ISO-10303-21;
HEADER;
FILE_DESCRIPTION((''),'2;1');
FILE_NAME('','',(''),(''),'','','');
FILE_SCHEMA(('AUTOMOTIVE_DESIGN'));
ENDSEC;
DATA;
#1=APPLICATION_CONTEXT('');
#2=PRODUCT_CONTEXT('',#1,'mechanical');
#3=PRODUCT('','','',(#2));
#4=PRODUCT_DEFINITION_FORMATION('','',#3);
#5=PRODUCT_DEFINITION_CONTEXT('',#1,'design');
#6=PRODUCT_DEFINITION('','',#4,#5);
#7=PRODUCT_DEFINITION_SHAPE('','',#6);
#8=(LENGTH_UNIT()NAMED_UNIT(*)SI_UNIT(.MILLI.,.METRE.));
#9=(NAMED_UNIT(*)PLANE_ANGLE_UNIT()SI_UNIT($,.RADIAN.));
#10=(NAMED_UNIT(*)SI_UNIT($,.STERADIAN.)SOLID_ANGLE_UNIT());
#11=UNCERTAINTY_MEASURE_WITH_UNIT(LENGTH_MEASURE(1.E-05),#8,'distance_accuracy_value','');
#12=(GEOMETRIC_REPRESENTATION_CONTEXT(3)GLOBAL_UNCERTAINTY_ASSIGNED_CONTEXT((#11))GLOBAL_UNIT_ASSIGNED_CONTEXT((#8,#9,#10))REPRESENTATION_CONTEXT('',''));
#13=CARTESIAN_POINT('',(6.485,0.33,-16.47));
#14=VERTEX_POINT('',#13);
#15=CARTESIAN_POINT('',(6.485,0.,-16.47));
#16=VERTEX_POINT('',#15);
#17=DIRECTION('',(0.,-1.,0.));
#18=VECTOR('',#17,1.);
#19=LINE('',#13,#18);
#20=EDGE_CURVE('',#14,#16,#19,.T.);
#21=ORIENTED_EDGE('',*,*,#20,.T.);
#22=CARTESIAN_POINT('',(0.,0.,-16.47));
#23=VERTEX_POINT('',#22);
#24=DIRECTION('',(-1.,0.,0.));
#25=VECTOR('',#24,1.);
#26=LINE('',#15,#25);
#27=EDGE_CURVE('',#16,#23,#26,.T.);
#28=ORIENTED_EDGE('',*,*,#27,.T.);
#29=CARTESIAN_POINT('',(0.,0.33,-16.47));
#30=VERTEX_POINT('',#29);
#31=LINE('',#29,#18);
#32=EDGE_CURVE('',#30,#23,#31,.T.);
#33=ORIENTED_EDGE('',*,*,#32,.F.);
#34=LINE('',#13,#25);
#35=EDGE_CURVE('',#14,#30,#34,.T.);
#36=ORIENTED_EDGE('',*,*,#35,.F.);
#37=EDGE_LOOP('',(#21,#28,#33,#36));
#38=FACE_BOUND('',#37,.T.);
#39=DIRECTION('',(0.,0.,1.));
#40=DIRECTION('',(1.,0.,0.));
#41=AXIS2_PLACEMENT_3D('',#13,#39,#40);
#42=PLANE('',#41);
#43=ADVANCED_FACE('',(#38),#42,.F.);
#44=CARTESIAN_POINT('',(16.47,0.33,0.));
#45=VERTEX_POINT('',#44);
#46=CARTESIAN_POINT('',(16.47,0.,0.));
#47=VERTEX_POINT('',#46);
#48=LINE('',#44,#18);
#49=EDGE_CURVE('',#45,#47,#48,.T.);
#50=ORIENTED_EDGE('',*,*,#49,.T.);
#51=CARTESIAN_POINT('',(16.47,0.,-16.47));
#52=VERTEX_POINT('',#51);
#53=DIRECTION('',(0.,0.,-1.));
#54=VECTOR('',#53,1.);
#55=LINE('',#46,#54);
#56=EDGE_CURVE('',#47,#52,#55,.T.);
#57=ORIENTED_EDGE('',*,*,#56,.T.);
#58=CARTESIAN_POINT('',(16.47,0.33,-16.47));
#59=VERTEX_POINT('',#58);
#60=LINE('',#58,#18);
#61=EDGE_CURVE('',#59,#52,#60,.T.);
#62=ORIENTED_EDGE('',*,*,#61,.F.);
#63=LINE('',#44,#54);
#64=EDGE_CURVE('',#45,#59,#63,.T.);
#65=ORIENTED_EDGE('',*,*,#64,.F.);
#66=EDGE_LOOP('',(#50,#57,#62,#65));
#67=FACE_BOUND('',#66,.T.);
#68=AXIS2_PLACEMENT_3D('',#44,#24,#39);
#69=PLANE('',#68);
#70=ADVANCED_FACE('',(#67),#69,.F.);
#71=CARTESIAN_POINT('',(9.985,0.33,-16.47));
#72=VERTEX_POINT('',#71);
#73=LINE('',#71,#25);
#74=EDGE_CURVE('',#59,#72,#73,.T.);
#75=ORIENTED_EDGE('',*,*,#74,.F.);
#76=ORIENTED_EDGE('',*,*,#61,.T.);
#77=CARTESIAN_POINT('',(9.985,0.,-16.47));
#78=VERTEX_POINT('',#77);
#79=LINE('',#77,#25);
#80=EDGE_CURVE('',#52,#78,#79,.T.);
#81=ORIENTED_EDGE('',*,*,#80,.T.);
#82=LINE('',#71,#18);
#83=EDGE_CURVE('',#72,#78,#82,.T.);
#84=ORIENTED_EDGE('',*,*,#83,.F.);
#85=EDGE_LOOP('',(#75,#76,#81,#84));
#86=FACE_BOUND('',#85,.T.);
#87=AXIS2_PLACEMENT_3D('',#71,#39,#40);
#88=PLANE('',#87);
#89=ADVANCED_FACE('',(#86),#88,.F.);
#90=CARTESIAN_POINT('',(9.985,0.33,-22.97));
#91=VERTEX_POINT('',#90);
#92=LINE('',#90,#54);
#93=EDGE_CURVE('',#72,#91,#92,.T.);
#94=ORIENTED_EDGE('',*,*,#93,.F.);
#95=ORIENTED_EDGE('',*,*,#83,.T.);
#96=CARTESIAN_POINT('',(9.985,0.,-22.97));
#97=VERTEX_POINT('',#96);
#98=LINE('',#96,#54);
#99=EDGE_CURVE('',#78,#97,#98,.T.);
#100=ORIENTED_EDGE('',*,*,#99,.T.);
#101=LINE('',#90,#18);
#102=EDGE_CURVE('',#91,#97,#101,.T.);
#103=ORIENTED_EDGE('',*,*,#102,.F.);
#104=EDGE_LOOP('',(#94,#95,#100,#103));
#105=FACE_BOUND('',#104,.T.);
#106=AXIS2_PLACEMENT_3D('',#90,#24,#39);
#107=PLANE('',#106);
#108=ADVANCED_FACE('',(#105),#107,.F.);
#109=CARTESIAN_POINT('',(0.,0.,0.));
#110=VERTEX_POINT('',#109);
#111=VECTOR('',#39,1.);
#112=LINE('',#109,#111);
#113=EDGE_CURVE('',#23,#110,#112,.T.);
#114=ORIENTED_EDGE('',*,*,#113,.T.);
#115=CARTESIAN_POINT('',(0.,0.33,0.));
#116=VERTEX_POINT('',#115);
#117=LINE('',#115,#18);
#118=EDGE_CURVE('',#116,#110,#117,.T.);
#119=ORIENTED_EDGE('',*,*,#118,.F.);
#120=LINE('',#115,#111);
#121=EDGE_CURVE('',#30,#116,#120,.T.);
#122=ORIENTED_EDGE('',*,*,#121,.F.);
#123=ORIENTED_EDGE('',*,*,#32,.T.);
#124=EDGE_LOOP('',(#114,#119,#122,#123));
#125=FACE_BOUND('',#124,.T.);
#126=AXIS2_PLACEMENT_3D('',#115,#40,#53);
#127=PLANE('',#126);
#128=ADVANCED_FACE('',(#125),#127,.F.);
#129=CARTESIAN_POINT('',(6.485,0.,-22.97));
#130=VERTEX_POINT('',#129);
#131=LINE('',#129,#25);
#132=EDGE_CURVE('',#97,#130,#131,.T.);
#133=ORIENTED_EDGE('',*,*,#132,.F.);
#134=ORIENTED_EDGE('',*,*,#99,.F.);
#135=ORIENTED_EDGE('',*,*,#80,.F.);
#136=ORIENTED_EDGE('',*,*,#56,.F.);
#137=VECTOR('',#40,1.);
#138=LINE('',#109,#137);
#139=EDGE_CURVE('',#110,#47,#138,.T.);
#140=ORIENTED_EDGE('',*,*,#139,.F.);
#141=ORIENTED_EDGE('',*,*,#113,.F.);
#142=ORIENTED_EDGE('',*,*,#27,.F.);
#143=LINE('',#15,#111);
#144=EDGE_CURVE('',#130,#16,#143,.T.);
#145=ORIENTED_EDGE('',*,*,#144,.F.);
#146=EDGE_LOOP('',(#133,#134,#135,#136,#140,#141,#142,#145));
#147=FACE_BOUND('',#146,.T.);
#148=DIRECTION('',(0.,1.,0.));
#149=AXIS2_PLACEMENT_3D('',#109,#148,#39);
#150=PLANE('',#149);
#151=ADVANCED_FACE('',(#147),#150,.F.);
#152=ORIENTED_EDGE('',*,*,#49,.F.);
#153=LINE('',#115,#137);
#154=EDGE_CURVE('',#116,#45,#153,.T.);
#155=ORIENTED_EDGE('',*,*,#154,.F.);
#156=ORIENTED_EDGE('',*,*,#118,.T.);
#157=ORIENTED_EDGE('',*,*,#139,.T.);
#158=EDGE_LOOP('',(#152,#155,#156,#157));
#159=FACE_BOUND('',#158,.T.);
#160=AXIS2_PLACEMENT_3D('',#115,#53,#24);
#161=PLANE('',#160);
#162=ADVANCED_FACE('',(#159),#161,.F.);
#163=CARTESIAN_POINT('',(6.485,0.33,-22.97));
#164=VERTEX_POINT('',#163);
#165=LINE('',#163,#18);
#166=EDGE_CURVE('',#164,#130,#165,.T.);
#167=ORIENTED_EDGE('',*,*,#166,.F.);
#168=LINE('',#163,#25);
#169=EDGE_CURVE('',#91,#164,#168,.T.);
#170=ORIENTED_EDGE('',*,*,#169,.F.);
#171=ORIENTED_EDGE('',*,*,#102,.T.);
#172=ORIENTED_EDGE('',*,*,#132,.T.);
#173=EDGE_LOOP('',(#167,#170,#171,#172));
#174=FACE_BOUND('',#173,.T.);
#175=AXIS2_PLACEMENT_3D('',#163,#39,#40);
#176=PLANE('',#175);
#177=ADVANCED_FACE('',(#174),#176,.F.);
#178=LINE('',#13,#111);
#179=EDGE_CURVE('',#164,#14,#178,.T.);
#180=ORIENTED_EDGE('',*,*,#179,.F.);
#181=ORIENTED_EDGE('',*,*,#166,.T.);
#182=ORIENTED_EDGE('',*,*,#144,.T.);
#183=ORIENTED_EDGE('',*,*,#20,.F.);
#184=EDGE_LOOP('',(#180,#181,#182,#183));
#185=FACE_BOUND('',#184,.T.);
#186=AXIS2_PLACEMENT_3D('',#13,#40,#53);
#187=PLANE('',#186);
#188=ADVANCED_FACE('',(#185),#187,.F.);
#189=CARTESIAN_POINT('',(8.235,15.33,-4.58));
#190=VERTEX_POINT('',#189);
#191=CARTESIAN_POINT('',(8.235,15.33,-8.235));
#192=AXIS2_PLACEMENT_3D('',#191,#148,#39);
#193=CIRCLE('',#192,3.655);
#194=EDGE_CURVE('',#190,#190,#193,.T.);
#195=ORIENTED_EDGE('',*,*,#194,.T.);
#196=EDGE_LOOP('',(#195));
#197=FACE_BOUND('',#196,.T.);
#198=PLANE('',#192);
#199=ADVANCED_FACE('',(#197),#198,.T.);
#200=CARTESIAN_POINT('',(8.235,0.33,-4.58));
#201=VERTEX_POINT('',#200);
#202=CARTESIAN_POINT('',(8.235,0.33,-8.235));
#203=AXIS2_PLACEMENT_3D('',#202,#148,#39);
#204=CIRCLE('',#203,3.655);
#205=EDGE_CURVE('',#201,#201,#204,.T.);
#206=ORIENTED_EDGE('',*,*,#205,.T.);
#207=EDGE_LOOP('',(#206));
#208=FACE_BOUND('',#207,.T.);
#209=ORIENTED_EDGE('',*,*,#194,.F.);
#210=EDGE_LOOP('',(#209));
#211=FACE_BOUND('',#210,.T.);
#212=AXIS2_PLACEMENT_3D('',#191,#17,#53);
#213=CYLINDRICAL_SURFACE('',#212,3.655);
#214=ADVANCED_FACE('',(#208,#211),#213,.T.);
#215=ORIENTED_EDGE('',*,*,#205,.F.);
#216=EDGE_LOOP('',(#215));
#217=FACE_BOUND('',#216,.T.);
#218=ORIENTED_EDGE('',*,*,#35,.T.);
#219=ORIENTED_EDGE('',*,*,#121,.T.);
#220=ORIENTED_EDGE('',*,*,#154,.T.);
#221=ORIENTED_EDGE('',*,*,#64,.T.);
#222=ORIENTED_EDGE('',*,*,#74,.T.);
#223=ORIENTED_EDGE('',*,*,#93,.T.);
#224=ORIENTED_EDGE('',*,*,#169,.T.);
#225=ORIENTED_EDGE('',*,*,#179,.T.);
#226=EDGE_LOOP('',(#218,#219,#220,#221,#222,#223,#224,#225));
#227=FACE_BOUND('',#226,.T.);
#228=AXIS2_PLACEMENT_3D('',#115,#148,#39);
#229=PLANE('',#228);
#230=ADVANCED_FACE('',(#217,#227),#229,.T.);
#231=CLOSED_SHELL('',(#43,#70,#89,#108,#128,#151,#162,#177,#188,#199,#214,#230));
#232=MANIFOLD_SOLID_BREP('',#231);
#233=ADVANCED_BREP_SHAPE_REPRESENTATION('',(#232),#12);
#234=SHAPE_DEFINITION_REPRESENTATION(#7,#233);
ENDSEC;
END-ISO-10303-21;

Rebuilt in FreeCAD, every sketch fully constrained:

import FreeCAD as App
import Part
import Sketcher
from FreeCAD import Vector

doc = App.newDocument("Part")
body = doc.addObject("PartDesign::Body", "Body")

# Sketch on XZ plane
sketch1 = body.newObject("Sketcher::SketchObject", "Sketch")
sketch1.AttachmentSupport = (doc.getObject("XZ_Plane"), [""])
sketch1.MapMode = "FlatFace"
sketch1.addGeometry([
    Part.LineSegment(Vector(0, 0, 0), Vector(16.5, 0, 0)),  # 0
    Part.LineSegment(Vector(16.5, 0, 0), Vector(16.5, -16.5, 0)),  # 1
    Part.LineSegment(Vector(16.5, -16.5, 0), Vector(10, -16.5, 0)),  # 2
    Part.LineSegment(Vector(10, -16.5, 0), Vector(10, -23, 0)),  # 3
    Part.LineSegment(Vector(10, -23, 0), Vector(6.5, -23, 0)),  # 4
    Part.LineSegment(Vector(6.5, -23, 0), Vector(6.5, -16.5, 0)),  # 5
    Part.LineSegment(Vector(6.5, -16.5, 0), Vector(0, -16.5, 0)),  # 6
    Part.LineSegment(Vector(0, -16.5, 0), Vector(0, 0, 0)),  # 7
], False)
sketch1.addConstraint([
    Sketcher.Constraint("Coincident", 0, 2, 1, 1),
    Sketcher.Constraint("Coincident", 1, 2, 2, 1),
    Sketcher.Constraint("Coincident", 2, 2, 3, 1),
    Sketcher.Constraint("Coincident", 3, 2, 4, 1),
    Sketcher.Constraint("Coincident", 4, 2, 5, 1),
    Sketcher.Constraint("Coincident", 5, 2, 6, 1),
    Sketcher.Constraint("Coincident", 6, 2, 7, 1),
    Sketcher.Constraint("Coincident", 7, 2, 0, 1),
    Sketcher.Constraint("Horizontal", 0),
    Sketcher.Constraint("Vertical", 1),
    Sketcher.Constraint("Horizontal", 2),
    Sketcher.Constraint("Vertical", 3),
    Sketcher.Constraint("Horizontal", 4),
    Sketcher.Constraint("Vertical", 5),
    Sketcher.Constraint("Horizontal", 6),
    Sketcher.Constraint("Vertical", 7),
    Sketcher.Constraint("Coincident", 7, 2, -1, 1),
    Sketcher.Constraint("Horizontal", 2, 2, 5, 2),
    Sketcher.Constraint("Equal", 2, 6),
    Sketcher.Constraint("Equal", 0, 1),
    Sketcher.Constraint("DistanceX", 4, 2, 4, 1, 3.5),
    Sketcher.Constraint("DistanceY", 3, 2, 3, 1, 6.5),
    Sketcher.Constraint("DistanceX", 0, 1, 0, 2, 16.47),
])
pad1 = body.newObject("PartDesign::Pad", "Pad")
pad1.Profile = sketch1
pad1.Length = 0.33
pad1.Reversed = True

# Sketch on XZ plane
sketch2 = body.newObject("Sketcher::SketchObject", "Sketch001")
sketch2.AttachmentSupport = (doc.getObject("XZ_Plane"), [""])
sketch2.MapMode = "FlatFace"
sketch2.AttachmentOffset = App.Placement(Vector(0, 0, -0.33), App.Rotation())
sketch2.addGeometry(Part.Circle(Vector(8.2, -8.2, 0), Vector(0, 0, 1), 3.7), False)
sketch2.addConstraint([
    Sketcher.Constraint("Diameter", 0, 7.31),
    Sketcher.Constraint("DistanceX", -1, 1, 0, 3, 8.235),
    Sketcher.Constraint("DistanceY", 0, 3, -1, 1, 8.235),
])
pad2 = body.newObject("PartDesign::Pad", "Pad001")
pad2.Profile = sketch2
pad2.Length = 15
pad2.Reversed = True

doc.recompute()
